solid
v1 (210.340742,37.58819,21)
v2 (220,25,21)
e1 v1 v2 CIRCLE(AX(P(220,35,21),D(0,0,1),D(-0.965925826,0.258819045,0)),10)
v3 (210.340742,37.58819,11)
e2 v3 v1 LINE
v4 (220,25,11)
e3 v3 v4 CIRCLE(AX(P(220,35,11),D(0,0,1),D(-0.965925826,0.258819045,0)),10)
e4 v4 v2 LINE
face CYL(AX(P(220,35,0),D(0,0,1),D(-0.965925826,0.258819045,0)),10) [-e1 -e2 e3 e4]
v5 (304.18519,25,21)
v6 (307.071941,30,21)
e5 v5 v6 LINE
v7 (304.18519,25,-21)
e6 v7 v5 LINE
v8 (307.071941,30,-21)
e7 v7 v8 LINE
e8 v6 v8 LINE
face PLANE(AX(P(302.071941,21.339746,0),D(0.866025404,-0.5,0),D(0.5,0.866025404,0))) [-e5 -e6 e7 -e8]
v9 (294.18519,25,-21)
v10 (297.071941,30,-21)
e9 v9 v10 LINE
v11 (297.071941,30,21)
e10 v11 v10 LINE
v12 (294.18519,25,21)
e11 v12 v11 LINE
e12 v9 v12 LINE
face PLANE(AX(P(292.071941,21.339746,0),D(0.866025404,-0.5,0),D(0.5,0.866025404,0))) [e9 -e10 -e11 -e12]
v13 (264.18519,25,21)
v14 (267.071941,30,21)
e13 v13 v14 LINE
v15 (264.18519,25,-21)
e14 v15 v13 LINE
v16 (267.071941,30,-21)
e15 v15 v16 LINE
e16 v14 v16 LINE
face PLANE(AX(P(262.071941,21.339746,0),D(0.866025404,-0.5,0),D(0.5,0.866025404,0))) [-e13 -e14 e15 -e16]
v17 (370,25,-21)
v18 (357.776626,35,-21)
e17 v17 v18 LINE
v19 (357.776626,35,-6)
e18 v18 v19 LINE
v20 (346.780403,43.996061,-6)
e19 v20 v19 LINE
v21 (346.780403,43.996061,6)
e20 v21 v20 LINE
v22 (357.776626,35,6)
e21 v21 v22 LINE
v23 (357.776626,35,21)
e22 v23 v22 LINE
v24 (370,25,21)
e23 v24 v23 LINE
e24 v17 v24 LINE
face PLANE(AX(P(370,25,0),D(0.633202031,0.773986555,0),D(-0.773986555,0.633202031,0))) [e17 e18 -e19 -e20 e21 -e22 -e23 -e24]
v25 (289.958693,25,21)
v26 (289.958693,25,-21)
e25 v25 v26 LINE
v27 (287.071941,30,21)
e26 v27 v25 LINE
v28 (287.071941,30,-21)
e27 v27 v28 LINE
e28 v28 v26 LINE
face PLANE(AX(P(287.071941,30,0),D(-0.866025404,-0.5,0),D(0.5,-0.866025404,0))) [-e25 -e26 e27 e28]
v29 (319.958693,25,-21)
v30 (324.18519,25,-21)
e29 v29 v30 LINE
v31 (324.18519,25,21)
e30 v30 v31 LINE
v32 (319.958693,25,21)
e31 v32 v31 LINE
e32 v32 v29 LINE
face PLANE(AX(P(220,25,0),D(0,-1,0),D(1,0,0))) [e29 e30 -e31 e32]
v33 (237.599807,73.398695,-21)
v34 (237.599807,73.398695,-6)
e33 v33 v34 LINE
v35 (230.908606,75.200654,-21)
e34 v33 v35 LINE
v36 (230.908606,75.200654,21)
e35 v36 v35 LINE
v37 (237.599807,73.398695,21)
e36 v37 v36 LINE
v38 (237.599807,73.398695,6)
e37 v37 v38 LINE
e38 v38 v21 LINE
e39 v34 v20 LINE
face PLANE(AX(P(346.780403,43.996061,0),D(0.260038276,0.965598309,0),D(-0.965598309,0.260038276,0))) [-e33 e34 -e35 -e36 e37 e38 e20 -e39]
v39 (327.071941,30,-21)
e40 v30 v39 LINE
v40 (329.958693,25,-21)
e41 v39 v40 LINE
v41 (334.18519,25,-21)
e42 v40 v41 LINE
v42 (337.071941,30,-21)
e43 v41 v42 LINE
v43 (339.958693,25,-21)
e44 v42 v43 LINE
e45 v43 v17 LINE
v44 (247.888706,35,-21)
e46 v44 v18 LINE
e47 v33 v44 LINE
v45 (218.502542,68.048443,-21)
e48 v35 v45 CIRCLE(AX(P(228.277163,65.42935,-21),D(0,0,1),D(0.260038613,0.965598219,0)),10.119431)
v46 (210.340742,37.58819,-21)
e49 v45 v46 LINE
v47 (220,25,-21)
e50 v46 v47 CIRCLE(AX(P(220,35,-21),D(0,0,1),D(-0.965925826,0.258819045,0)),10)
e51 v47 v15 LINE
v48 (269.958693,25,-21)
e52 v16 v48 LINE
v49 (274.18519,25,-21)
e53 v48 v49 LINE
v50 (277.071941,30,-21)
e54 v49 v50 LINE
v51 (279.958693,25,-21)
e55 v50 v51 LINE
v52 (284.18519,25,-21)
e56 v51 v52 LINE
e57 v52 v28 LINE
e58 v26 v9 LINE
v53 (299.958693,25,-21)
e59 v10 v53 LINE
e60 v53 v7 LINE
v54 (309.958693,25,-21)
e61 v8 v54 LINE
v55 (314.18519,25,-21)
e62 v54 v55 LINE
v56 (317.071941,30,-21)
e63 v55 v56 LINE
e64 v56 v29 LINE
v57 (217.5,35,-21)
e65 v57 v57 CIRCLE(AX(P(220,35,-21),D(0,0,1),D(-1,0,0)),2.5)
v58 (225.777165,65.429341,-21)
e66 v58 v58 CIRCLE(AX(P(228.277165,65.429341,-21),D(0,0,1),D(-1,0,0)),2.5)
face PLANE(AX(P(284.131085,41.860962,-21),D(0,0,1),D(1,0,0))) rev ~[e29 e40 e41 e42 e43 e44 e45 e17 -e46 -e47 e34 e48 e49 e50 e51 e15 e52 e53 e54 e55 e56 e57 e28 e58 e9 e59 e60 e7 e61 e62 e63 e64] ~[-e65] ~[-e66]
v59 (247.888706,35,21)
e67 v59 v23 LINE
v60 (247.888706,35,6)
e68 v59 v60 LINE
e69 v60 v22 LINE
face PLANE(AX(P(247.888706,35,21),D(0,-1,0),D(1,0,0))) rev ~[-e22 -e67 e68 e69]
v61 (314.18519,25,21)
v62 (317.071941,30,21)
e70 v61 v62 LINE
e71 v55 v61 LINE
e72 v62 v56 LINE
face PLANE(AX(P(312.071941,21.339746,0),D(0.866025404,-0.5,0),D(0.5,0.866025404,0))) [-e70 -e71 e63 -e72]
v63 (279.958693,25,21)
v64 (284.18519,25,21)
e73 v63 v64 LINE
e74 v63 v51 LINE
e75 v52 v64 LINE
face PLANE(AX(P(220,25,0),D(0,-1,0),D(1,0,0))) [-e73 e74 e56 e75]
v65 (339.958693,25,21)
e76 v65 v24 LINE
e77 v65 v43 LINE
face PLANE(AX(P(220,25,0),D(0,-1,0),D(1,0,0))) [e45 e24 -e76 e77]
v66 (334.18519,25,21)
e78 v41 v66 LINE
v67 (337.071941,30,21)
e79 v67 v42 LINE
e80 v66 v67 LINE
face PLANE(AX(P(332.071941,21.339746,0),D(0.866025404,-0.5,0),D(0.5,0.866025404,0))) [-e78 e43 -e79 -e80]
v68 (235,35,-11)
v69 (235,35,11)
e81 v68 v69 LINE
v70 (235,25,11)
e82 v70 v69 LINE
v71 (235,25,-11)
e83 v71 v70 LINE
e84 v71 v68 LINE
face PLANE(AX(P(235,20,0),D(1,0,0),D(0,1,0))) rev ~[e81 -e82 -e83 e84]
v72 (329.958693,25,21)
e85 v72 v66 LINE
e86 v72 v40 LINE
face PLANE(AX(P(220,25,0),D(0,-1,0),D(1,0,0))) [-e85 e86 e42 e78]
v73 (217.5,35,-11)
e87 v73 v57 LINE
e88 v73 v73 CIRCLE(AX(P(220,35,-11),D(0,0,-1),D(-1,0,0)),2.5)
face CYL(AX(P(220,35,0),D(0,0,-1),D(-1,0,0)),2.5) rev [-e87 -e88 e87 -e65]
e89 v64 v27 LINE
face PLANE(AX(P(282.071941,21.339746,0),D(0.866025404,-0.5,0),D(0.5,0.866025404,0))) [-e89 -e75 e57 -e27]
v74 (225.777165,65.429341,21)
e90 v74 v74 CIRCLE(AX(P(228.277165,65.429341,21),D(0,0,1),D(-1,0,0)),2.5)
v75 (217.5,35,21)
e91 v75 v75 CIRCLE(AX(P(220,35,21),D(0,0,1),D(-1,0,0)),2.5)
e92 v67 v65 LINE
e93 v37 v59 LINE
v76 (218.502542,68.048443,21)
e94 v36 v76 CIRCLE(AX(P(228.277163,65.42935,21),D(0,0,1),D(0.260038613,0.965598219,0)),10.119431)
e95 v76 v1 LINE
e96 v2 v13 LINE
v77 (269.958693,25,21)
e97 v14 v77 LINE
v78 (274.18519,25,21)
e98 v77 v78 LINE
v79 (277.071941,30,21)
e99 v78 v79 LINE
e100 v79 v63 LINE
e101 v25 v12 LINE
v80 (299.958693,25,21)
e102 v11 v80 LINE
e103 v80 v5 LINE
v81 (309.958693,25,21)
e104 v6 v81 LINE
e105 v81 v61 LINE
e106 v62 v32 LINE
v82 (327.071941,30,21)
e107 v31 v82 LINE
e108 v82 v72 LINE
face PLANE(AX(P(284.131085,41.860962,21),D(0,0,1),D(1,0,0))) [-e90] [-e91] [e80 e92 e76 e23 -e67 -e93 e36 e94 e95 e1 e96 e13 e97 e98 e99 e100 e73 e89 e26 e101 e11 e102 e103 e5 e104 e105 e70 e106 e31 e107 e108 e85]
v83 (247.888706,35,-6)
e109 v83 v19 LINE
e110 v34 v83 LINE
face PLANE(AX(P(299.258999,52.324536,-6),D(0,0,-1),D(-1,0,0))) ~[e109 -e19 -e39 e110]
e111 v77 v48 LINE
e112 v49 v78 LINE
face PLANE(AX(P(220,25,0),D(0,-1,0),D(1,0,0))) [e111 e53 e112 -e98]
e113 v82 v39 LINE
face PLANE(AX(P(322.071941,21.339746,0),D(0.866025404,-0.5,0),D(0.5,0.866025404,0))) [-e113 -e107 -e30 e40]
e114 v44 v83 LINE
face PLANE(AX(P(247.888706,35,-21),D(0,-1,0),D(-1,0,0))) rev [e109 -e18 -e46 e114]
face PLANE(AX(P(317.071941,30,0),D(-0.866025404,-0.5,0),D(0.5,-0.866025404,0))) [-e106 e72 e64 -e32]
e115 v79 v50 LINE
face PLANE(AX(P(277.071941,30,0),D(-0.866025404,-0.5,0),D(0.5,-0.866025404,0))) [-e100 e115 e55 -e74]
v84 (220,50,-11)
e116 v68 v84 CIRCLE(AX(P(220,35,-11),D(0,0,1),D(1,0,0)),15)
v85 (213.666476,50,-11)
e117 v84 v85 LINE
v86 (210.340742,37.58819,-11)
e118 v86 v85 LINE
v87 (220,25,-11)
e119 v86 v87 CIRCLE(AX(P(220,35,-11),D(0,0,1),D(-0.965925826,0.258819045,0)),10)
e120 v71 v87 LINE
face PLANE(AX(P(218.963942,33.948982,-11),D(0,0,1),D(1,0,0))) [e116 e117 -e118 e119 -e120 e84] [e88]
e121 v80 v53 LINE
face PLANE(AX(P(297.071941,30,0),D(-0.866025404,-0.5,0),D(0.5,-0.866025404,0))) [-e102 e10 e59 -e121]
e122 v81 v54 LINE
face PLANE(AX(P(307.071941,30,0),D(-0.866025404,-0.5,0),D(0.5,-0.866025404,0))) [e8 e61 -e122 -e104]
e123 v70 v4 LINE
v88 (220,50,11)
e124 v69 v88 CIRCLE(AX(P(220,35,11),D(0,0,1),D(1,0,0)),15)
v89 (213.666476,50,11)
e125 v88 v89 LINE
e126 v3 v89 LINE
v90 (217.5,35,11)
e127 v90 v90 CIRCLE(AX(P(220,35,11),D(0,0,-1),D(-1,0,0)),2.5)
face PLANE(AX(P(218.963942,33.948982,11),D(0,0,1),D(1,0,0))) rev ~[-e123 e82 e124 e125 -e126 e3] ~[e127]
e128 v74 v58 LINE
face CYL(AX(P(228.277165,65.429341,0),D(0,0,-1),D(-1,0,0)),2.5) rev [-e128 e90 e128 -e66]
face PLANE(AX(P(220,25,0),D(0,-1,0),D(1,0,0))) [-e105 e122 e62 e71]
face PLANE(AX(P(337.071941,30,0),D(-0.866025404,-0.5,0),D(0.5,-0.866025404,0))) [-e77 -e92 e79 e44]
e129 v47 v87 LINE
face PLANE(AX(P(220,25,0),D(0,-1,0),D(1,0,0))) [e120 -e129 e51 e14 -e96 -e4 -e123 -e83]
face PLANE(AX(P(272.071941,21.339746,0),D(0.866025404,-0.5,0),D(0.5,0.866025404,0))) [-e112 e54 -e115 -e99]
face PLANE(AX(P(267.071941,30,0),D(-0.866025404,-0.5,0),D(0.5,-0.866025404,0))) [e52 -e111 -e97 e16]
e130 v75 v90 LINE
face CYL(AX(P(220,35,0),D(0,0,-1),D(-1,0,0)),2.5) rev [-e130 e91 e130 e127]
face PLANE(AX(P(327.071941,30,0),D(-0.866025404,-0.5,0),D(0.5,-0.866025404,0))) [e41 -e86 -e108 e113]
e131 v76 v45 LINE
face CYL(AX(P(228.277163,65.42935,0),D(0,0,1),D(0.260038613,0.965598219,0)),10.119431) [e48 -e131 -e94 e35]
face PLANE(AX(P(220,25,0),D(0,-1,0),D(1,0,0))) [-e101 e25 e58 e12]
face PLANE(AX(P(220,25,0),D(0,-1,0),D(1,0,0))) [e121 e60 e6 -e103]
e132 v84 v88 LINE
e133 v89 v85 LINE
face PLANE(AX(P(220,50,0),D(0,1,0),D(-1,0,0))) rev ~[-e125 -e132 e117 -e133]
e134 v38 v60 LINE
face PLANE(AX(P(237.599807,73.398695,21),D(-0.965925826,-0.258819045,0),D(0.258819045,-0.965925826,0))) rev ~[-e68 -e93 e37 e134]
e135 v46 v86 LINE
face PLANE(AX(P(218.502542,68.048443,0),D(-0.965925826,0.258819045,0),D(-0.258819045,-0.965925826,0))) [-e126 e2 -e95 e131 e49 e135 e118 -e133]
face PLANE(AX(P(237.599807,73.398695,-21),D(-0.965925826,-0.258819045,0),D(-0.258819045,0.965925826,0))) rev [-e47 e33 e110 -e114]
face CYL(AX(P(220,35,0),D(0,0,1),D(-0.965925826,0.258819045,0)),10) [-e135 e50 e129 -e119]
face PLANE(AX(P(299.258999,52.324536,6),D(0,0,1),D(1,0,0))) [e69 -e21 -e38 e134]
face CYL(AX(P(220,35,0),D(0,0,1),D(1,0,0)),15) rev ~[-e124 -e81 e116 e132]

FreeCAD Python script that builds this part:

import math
import FreeCAD as App
import Part
import Sketcher

V = App.Vector
Q = App.Units.Quantity

doc = App.newDocument("Part")
body = doc.addObject("PartDesign::Body", "Body")

sketch1 = body.newObject("Sketcher::SketchObject", "Sketch")
sketch1.AttachmentSupport = (doc.getObject("XY_Plane"), [""])
sketch1.MapMode = "FlatFace"
sketch1.addGeometry([
    Part.LineSegment(V(218.502542, 68.048443, 0), V(210.340742, 37.58819, 0)),
    Part.ArcOfCircle(Part.Circle(V(220, 35, 0), V(0, 0, 1), 10), math.radians(165), math.radians(270)),
    Part.LineSegment(V(220, 25, 0), V(370, 25, 0)),
    Part.LineSegment(V(370, 25, 0), V(346.780403, 43.996061, 0)),
    Part.LineSegment(V(346.780403, 43.996061, 0), V(230.908606, 75.200654, 0)),
    Part.ArcOfCircle(Part.Circle(V(228.277163, 65.42935, 0), V(0, 0, 1), 10.119431), math.radians(74.927647), math.radians(165.000048)),
    Part.Circle(V(220, 35, 0), V(0, 0, 1), 2.5),
    Part.Circle(V(228.277165, 65.429341, 0), V(0, 0, 1), 2.5),
], False)
sketch1.addConstraint([
    Sketcher.Constraint("Tangent", 0, 2, 1, 1),
    Sketcher.Constraint("Tangent", 1, 2, 2, 1),
    Sketcher.Constraint("Coincident", 2, 2, 3, 1),
    Sketcher.Constraint("Coincident", 3, 2, 4, 1),
    Sketcher.Constraint("Tangent", 4, 2, 5, 1),
    Sketcher.Constraint("Tangent", 5, 2, 0, 1),
    Sketcher.Constraint("Horizontal", 2),
    Sketcher.Constraint("Coincident", 6, 3, 1, 3),
    Sketcher.Constraint("Coincident", 7, 3, 5, 3),
    Sketcher.Constraint("Equal", 6, 7),
    Sketcher.Constraint("Diameter", 6, Q("5 mm")),
    Sketcher.Constraint("Radius", 1, Q("10 mm")),
    Sketcher.Constraint("DistanceX", 2, 1, 2, 2, Q("150 mm")),
    Sketcher.Constraint("Angle", 0, Q("-105 deg")),
    Sketcher.Constraint("Distance", 3, Q("30 mm")),
    Sketcher.Constraint("Distance", 4, Q("120 mm")),
    Sketcher.Constraint("DistanceX", -1, 1, 1, 3, Q("220 mm")),
    Sketcher.Constraint("DistanceY", -1, 1, 1, 3, Q("35 mm")),
    Sketcher.Constraint("Radius", 5, Q("10.119431 mm")),
    Sketcher.Constraint("DistanceX", 0, 2, 5, 2, Q("8.1618 mm")),
])
pad1 = body.newObject("PartDesign::Pad", "Pad")
pad1.Profile = sketch1
pad1.Length = 42
pad1.Midplane = True

sketch2 = body.newObject("Sketcher::SketchObject", "Sketch001")
sketch2.AttachmentSupport = (doc.getObject("XY_Plane"), [""])
sketch2.MapMode = "FlatFace"
sketch2.addGeometry([
    Part.LineSegment(V(235, 20, 0), V(235, 35, 0)),
    Part.ArcOfCircle(Part.Circle(V(220, 35, 0), V(0, 0, 1), 15), math.radians(0), math.radians(90)),
    Part.LineSegment(V(220, 50, 0), V(205, 50, 0)),
    Part.LineSegment(V(205, 50, 0), V(205.078251, 33.46983, 0)),
    Part.LineSegment(V(205.078251, 33.46983, 0), V(205.078251, 20, 0)),
    Part.LineSegment(V(205.078251, 20, 0), V(235, 20, 0)),
], False)
sketch2.addConstraint([
    Sketcher.Constraint("Tangent", 0, 2, 1, 1),
    Sketcher.Constraint("Tangent", 1, 2, 2, 1),
    Sketcher.Constraint("Coincident", 2, 2, 3, 1),
    Sketcher.Constraint("Coincident", 3, 2, 4, 1),
    Sketcher.Constraint("Coincident", 4, 2, 5, 1),
    Sketcher.Constraint("Coincident", 5, 2, 0, 1),
    Sketcher.Constraint("Vertical", 0),
    Sketcher.Constraint("Horizontal", 2),
    Sketcher.Constraint("Vertical", 4),
    Sketcher.Constraint("Horizontal", 5),
    Sketcher.Constraint("Equal", 2, 0),
    Sketcher.Constraint("Radius", 1, Q("15 mm")),
    Sketcher.Constraint("DistanceX", 2, 2, 2, 1, Q("15 mm")),
    Sketcher.Constraint("DistanceX", -1, 1, 1, 3, Q("220 mm")),
    Sketcher.Constraint("DistanceY", -1, 1, 1, 3, Q("35 mm")),
    Sketcher.Constraint("DistanceX", 5, 1, 5, 2, Q("29.921749 mm")),
    Sketcher.Constraint("DistanceY", 4, 2, 4, 1, Q("13.46983 mm")),
])
pocket1 = body.newObject("PartDesign::Pocket", "Pocket")
pocket1.Profile = sketch2
pocket1.Length = 22
pocket1.Midplane = True

sketch3 = body.newObject("Sketcher::SketchObject", "Sketch002")
sketch3.AttachmentSupport = (doc.getObject("XY_Plane"), [""])
sketch3.MapMode = "FlatFace"
sketch3.AttachmentOffset = App.Placement(V(0, 0, 21), App.Rotation())
sketch3.addGeometry([
    Part.LineSegment(V(237.599807, 73.398695, 0), V(247.888706, 35, 0)),
    Part.LineSegment(V(247.888706, 35, 0), V(366.82398, 35, 0)),
    Part.LineSegment(V(366.82398, 35, 0), V(338.386106, 70.333701, 0)),
    Part.LineSegment(V(338.386106, 70.333701, 0), V(237.599807, 73.398695, 0)),
], False)
sketch3.addConstraint([
    Sketcher.Constraint("Coincident", 0, 2, 1, 1),
    Sketcher.Constraint("Coincident", 1, 2, 2, 1),
    Sketcher.Constraint("Coincident", 2, 2, 3, 1),
    Sketcher.Constraint("Coincident", 3, 2, 0, 1),
    Sketcher.Constraint("Horizontal", 1),
    Sketcher.Constraint("Angle", 0, Q("-75 deg")),
    Sketcher.Constraint("DistanceY", -1, 1, 0, 2, Q("35 mm")),
    Sketcher.Constraint("DistanceY", -1, 1, 2, 2, Q("70.333701 mm")),
    Sketcher.Constraint("DistanceX", 0, 2, 2, 2, Q("90.4974 mm")),
    Sketcher.Constraint("DistanceX", 3, 2, 0, 2, Q("10.288899 mm")),
    Sketcher.Constraint("Distance", 2, Q("45.356181 mm")),
    Sketcher.Constraint("DistanceX", -1, 1, 1, 2, Q("366.82398 mm")),
])
pocket2 = body.newObject("PartDesign::Pocket", "Pocket001")
pocket2.Profile = sketch3
pocket2.Length = 15
doc.recompute()

mirrored = body.newObject("PartDesign::Mirrored", "Mirrored")
mirrored.Originals = [pocket2]
mirrored.MirrorPlane = (doc.getObject("XY_Plane"), [""])
body.Tip = mirrored

sketch4 = body.newObject("Sketcher::SketchObject", "Sketch003")
sketch4.AttachmentSupport = (doc.getObject("XY_Plane"), [""])
sketch4.MapMode = "FlatFace"
sketch4.addGeometry([
    Part.LineSegment(V(267.071941, 30, 0), V(262.071941, 21.339746, 0)),
    Part.LineSegment(V(262.071941, 21.339746, 0), V(272.071941, 21.339746, 0)),
    Part.LineSegment(V(272.071941, 21.339746, 0), V(267.071941, 30, 0)),
], False)
sketch4.addConstraint([
    Sketcher.Constraint("Coincident", 0, 2, 1, 1),
    Sketcher.Constraint("Coincident", 1, 2, 2, 1),
    Sketcher.Constraint("Coincident", 2, 2, 0, 1),
    Sketcher.Constraint("Horizontal", 1),
    Sketcher.Constraint("Equal", 0, 2),
    Sketcher.Constraint("DistanceX", 1, 1, 1, 2, Q("10 mm")),
    Sketcher.Constraint("Angle", 0, Q("-120 deg")),
    Sketcher.Constraint("DistanceY", -1, 1, 2, 2, Q("30 mm")),
    Sketcher.Constraint("DistanceX", -1, 1, 0, 2, Q("262.071941 mm")),
])
pocket3 = body.newObject("PartDesign::Pocket", "Pocket002")
pocket3.Profile = sketch4
pocket3.Length = 50
pocket3.Midplane = True
doc.recompute()

linearpattern = body.newObject("PartDesign::LinearPattern", "LinearPattern")
linearpattern.Originals = [pocket3]
linearpattern.Direction = (doc.getObject("X_Axis"), [""])
linearpattern.Mode = "offset"
linearpattern.Offset = 10
linearpattern.Occurrences = 8
body.Tip = linearpattern

doc.recompute()
